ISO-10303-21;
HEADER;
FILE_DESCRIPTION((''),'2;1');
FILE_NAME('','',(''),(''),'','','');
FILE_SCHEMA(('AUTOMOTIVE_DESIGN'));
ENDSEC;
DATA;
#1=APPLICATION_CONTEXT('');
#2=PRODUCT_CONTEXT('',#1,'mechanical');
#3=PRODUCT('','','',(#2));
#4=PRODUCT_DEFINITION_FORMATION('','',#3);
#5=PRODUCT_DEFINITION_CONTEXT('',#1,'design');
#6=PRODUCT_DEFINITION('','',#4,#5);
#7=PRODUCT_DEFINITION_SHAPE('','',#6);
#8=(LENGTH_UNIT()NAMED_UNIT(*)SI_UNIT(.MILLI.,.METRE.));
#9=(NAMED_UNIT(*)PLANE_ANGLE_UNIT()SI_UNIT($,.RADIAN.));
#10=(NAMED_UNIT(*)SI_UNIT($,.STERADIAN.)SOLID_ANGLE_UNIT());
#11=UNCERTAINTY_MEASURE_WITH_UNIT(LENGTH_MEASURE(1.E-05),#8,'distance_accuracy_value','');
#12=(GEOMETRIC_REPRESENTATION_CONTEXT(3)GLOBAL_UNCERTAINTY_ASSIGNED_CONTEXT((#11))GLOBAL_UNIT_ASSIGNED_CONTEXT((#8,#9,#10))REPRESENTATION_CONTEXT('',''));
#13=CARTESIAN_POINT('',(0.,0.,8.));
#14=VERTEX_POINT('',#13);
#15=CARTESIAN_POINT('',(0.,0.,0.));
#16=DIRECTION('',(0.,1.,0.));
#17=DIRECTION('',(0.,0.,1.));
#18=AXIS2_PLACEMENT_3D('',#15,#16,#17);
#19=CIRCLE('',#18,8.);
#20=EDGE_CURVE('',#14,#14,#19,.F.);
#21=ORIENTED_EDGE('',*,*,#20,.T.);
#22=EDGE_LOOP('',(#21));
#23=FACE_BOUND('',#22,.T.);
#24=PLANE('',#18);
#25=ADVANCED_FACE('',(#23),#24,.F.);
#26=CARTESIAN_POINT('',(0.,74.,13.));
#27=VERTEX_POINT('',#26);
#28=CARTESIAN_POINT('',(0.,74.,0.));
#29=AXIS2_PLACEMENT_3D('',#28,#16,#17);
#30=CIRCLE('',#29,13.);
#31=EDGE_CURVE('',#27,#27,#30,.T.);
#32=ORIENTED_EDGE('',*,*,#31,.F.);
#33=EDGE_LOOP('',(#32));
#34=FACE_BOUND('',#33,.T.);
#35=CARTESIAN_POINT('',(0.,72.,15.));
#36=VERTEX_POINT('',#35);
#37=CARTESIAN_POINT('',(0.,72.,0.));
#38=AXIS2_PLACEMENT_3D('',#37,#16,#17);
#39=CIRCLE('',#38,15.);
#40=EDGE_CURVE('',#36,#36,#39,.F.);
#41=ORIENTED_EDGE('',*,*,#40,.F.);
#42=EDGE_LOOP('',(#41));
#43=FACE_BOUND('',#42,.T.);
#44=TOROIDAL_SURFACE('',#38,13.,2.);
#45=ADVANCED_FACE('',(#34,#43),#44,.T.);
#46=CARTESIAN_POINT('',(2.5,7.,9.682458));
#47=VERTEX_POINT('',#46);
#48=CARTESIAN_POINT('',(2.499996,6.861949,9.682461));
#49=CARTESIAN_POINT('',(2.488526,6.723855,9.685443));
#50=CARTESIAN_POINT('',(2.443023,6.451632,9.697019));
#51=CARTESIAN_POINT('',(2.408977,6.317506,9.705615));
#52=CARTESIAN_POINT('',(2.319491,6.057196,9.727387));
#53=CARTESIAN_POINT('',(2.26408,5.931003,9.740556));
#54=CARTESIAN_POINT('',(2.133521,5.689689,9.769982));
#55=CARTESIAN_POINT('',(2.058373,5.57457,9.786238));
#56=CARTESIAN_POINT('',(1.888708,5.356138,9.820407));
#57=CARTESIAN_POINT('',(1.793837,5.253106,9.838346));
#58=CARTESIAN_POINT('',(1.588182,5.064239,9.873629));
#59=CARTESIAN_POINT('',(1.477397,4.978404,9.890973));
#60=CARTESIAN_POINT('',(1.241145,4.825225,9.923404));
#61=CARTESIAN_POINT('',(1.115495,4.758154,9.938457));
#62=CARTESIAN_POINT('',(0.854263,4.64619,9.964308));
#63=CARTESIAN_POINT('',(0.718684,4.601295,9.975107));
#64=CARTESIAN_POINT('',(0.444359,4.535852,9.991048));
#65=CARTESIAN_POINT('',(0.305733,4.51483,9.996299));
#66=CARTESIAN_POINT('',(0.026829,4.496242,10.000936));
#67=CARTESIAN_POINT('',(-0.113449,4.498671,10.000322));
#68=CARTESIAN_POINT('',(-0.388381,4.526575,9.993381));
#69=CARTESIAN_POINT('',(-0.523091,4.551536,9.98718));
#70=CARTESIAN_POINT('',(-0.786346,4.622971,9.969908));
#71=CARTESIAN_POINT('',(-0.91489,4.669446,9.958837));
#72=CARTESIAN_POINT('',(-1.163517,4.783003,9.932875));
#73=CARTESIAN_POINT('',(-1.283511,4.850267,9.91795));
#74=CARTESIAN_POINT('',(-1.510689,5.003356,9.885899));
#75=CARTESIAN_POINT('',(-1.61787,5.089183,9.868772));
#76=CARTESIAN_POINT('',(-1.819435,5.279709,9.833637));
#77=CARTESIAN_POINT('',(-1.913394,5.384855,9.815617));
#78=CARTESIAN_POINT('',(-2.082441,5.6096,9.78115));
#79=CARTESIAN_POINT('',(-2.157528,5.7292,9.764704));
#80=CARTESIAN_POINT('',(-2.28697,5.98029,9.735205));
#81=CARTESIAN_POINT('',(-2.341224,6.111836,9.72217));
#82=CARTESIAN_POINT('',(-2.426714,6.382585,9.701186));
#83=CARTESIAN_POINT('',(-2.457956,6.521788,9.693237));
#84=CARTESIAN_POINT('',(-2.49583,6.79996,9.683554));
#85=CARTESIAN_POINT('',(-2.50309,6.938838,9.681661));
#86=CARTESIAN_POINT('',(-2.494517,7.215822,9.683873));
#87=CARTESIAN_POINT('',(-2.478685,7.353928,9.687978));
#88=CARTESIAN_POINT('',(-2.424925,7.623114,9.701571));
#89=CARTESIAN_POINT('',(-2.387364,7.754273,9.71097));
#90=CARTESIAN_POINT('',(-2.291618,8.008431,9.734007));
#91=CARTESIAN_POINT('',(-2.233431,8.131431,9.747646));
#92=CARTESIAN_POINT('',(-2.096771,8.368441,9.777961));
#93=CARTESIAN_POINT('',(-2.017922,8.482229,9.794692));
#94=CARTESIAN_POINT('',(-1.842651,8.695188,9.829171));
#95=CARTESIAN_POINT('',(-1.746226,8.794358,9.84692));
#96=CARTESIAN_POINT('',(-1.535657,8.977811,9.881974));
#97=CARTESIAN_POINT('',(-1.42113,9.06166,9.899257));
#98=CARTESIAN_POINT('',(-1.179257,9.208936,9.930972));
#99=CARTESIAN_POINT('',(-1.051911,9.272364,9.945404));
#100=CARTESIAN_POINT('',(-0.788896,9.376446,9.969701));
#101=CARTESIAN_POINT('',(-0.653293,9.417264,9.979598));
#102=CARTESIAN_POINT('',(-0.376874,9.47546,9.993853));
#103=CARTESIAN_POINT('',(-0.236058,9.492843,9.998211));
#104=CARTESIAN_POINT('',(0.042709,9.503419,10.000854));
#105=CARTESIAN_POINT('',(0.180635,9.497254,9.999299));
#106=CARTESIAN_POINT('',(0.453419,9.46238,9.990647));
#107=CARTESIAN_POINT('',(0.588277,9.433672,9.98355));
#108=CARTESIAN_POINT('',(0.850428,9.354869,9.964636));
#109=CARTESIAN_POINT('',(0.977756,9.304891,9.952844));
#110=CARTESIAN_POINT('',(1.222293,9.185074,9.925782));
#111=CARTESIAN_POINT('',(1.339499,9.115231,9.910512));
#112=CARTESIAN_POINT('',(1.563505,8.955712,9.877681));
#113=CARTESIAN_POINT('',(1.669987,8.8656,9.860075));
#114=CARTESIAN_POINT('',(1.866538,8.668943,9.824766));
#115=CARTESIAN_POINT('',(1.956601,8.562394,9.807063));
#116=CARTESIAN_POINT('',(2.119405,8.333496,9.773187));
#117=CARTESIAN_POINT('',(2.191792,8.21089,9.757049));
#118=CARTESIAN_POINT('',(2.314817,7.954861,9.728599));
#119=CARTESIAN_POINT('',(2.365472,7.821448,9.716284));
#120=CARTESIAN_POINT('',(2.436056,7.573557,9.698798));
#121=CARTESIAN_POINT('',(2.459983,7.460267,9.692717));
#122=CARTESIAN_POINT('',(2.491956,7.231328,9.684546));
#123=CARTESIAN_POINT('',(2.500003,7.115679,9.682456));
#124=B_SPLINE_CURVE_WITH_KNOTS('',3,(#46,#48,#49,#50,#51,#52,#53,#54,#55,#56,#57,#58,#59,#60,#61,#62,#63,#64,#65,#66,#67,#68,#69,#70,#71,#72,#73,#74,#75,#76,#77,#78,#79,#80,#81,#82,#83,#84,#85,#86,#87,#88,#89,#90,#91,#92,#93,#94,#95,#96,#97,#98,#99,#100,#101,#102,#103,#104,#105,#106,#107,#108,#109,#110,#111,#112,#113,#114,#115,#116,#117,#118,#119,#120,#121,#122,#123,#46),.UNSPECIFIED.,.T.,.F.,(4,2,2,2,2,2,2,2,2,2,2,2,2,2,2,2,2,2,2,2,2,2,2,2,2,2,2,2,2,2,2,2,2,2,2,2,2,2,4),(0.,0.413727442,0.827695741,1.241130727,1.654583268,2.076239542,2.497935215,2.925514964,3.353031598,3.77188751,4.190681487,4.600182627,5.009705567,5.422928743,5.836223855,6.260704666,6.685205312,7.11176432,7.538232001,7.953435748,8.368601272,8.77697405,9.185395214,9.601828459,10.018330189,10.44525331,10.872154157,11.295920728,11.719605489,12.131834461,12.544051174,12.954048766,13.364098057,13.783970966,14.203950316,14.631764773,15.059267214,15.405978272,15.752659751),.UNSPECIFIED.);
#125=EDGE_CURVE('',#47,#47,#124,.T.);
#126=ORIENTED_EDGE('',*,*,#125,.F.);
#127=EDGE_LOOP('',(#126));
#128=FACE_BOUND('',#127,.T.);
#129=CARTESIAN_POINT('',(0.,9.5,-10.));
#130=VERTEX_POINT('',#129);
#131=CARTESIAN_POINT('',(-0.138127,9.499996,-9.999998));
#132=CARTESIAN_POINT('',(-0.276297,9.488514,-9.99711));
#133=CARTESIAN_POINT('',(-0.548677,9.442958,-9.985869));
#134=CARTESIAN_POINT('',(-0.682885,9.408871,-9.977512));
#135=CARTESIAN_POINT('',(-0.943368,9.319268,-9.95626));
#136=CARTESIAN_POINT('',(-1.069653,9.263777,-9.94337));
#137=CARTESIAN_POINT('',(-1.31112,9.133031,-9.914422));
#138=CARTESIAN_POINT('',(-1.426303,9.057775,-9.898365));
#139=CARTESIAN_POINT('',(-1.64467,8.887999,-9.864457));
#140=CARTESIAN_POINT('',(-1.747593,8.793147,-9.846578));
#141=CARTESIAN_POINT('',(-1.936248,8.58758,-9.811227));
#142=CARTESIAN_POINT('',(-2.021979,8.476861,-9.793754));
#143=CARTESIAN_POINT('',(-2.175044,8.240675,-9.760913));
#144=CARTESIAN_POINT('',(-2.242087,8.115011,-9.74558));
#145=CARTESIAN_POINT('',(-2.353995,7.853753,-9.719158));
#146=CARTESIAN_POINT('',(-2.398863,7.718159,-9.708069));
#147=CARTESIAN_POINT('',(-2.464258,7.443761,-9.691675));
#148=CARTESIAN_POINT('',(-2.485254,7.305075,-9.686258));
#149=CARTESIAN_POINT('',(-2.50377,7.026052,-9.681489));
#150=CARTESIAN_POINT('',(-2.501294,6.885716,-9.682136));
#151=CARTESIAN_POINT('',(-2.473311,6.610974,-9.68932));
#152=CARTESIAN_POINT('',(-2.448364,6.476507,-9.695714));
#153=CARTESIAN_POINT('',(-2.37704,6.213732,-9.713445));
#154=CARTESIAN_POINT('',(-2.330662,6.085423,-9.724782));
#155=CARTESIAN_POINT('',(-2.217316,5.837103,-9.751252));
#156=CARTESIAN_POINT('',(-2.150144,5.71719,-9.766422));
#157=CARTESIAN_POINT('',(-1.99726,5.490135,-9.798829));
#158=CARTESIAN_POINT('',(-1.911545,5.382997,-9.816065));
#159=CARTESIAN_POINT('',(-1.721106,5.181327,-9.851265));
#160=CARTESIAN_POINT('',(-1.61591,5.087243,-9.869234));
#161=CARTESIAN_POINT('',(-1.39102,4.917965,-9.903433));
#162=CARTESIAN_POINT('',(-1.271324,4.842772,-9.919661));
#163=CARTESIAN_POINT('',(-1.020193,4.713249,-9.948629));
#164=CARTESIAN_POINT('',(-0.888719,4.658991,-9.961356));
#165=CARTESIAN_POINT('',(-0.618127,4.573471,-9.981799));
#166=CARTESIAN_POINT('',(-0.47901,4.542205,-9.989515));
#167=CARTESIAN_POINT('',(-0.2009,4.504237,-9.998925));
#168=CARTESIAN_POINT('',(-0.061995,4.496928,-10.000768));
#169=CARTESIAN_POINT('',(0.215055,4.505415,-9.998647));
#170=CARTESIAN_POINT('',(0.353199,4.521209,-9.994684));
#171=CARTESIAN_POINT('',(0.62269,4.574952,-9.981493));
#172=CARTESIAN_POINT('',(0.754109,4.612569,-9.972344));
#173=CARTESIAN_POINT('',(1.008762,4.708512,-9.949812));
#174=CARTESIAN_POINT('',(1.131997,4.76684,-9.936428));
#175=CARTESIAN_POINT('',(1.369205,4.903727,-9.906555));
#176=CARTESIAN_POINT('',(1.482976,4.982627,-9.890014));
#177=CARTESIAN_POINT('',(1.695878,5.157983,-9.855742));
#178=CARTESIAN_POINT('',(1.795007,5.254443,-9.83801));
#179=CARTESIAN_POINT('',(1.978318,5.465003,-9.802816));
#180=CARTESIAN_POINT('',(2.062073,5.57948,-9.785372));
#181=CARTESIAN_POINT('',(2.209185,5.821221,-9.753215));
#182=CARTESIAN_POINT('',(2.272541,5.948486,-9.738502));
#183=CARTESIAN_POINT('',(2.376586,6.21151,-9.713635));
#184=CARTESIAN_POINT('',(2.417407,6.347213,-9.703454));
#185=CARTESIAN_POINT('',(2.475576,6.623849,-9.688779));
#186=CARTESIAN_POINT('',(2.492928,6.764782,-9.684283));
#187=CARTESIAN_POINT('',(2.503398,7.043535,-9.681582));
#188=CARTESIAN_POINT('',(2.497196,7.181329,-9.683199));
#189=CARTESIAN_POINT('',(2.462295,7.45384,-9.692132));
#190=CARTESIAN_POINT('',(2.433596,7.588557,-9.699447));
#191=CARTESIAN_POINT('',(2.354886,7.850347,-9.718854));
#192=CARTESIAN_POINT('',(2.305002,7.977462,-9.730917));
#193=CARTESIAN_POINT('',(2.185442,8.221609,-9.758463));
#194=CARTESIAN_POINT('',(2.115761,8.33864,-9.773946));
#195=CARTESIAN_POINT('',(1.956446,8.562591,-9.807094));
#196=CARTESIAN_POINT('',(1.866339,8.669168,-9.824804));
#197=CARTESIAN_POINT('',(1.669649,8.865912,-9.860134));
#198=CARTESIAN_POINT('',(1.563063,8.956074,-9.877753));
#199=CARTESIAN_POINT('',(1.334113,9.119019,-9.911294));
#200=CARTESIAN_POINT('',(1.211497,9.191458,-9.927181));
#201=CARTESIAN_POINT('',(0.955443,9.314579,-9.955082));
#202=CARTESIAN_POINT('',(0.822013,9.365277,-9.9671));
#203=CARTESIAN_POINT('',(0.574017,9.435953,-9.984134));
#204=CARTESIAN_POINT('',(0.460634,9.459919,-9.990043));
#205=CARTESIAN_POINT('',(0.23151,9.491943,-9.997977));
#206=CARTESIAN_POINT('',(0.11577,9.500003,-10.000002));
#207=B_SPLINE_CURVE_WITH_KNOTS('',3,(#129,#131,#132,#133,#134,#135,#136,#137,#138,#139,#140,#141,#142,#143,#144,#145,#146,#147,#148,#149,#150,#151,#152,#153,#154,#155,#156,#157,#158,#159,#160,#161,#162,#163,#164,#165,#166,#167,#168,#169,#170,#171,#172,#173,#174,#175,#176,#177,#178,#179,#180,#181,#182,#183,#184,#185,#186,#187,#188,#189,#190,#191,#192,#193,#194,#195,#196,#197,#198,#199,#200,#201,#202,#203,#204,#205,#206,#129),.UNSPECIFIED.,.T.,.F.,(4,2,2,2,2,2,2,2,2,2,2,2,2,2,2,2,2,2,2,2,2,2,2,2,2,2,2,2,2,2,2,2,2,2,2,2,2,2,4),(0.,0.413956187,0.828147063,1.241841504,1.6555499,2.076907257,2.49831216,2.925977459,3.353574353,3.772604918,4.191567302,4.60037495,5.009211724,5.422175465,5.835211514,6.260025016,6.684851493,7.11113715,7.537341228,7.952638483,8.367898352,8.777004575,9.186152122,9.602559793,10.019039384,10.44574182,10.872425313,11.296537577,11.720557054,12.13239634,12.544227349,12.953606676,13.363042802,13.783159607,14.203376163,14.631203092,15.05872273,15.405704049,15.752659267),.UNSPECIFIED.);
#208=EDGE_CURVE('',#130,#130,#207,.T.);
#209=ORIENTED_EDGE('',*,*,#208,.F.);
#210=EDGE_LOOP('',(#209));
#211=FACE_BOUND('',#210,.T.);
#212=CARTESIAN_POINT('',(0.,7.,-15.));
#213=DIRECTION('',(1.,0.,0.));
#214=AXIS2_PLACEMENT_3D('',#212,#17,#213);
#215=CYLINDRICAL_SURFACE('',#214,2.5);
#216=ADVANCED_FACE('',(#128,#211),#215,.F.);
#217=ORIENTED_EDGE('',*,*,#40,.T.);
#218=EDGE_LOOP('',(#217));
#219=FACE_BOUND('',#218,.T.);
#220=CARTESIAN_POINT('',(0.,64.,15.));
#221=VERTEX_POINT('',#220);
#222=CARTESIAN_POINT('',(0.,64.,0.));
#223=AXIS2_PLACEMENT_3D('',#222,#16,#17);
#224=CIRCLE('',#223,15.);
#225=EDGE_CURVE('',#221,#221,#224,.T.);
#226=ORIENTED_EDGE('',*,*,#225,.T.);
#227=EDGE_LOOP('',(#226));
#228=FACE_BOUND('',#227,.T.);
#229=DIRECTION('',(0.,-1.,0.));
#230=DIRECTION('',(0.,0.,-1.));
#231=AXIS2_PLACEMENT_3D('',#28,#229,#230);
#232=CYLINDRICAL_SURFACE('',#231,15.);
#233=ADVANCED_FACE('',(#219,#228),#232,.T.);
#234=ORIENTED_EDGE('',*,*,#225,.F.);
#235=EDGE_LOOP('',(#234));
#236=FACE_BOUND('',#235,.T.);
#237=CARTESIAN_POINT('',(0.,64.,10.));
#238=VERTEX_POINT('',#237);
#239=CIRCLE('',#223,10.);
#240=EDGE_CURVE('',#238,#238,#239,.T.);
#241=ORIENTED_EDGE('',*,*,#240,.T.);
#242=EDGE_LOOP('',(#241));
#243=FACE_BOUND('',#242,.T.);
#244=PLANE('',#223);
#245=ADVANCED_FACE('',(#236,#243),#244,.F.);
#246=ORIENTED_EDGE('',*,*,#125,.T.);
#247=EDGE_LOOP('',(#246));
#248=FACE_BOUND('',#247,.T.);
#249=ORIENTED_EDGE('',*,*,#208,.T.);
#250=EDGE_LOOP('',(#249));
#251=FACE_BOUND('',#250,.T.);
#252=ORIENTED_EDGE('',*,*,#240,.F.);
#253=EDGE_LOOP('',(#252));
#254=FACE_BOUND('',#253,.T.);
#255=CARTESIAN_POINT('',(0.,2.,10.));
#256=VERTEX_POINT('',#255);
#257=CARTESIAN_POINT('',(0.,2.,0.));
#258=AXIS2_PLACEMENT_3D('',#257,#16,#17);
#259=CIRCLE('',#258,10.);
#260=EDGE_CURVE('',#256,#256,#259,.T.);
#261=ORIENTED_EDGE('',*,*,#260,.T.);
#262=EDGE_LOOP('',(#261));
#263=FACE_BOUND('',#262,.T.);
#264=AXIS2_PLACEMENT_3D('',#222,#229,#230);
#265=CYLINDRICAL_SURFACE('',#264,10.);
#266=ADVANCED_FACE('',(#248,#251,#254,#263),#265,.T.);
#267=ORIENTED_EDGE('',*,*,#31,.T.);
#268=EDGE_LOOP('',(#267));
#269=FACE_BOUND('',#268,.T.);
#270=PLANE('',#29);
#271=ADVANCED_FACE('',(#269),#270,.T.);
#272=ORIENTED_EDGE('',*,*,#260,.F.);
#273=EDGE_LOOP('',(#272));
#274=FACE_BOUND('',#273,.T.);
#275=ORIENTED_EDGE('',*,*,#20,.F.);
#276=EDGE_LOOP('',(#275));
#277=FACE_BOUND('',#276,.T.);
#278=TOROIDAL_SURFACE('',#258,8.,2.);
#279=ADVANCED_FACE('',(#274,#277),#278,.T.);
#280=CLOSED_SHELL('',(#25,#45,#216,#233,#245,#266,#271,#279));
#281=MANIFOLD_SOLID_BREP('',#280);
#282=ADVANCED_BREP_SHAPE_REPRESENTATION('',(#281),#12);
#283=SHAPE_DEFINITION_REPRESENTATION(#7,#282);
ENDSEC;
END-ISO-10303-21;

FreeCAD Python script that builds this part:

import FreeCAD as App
import Part
import Sketcher


def edges_at(feature, points):
    """Names of the edges that pass closest to the given points."""
    edges = feature.Shape.Edges
    near = lambda p: min(range(len(edges)), key=lambda i: edges[i].distToShape(Part.Vertex(*p))[0])
    return sorted({f"Edge{near(p) + 1}" for p in points})

doc = App.newDocument("Part")
body = doc.addObject("PartDesign::Body", "Body")

# Sketch on XZ plane
sketch1 = body.newObject("Sketcher::SketchObject", "Sketch")
sketch1.AttachmentSupport = (doc.getObject("XZ_Plane"), [""])
sketch1.MapMode = "FlatFace"
sketch1.addGeometry(Part.Circle(App.Vector(0, 0, 0), App.Vector(0, 0, 1), 10), False)
sketch1.addConstraint(Sketcher.Constraint("Coincident", 0, 3, -1, 1))
sketch1.addConstraint(Sketcher.Constraint("Diameter", 0, 20.0))
pad1 = body.newObject("PartDesign::Pad", "Pad")
pad1.Profile = sketch1
pad1.Length = 64
pad1.Reversed = True

# Sketch on XZ plane
sketch2 = body.newObject("Sketcher::SketchObject", "Sketch001")
sketch2.AttachmentSupport = (doc.getObject("XZ_Plane"), [""])
sketch2.MapMode = "FlatFace"
sketch2.AttachmentOffset = App.Placement(App.Vector(0, 0, -64), App.Rotation())
sketch2.addGeometry(Part.Circle(App.Vector(0, 0, 0), App.Vector(0, 0, 1), 15), False)
sketch2.addConstraint(Sketcher.Constraint("Coincident", 0, 3, -1, 1))
sketch2.addConstraint(Sketcher.Constraint("Diameter", 0, 30.0))
pad2 = body.newObject("PartDesign::Pad", "Pad001")
pad2.Profile = sketch2
pad2.Length = 10
pad2.Reversed = True

# Sketch on XY plane
sketch3 = body.newObject("Sketcher::SketchObject", "Sketch002")
sketch3.AttachmentSupport = (doc.getObject("XY_Plane"), [""])
sketch3.MapMode = "FlatFace"
sketch3.addGeometry(Part.Circle(App.Vector(0, 7, 0), App.Vector(0, 0, 1), 2.5), False)
sketch3.addConstraint(Sketcher.Constraint("PointOnObject", 0, 3, -2))
sketch3.addConstraint(Sketcher.Constraint("Diameter", 0, 5.0))
sketch3.addConstraint(Sketcher.Constraint("DistanceY", -1, 1, 0, 3, 7.0))
pocket1 = body.newObject("PartDesign::Pocket", "Pocket")
pocket1.Profile = sketch3
pocket1.Type = "ThroughAll"
pocket1.Midplane = True
doc.recompute()

fillet = body.newObject("PartDesign::Fillet", "Fillet")
fillet.Base = (pocket1, edges_at(pocket1, [(0, 0, -10), (0, 74, -15)]))
fillet.Radius = 2

doc.recompute()
